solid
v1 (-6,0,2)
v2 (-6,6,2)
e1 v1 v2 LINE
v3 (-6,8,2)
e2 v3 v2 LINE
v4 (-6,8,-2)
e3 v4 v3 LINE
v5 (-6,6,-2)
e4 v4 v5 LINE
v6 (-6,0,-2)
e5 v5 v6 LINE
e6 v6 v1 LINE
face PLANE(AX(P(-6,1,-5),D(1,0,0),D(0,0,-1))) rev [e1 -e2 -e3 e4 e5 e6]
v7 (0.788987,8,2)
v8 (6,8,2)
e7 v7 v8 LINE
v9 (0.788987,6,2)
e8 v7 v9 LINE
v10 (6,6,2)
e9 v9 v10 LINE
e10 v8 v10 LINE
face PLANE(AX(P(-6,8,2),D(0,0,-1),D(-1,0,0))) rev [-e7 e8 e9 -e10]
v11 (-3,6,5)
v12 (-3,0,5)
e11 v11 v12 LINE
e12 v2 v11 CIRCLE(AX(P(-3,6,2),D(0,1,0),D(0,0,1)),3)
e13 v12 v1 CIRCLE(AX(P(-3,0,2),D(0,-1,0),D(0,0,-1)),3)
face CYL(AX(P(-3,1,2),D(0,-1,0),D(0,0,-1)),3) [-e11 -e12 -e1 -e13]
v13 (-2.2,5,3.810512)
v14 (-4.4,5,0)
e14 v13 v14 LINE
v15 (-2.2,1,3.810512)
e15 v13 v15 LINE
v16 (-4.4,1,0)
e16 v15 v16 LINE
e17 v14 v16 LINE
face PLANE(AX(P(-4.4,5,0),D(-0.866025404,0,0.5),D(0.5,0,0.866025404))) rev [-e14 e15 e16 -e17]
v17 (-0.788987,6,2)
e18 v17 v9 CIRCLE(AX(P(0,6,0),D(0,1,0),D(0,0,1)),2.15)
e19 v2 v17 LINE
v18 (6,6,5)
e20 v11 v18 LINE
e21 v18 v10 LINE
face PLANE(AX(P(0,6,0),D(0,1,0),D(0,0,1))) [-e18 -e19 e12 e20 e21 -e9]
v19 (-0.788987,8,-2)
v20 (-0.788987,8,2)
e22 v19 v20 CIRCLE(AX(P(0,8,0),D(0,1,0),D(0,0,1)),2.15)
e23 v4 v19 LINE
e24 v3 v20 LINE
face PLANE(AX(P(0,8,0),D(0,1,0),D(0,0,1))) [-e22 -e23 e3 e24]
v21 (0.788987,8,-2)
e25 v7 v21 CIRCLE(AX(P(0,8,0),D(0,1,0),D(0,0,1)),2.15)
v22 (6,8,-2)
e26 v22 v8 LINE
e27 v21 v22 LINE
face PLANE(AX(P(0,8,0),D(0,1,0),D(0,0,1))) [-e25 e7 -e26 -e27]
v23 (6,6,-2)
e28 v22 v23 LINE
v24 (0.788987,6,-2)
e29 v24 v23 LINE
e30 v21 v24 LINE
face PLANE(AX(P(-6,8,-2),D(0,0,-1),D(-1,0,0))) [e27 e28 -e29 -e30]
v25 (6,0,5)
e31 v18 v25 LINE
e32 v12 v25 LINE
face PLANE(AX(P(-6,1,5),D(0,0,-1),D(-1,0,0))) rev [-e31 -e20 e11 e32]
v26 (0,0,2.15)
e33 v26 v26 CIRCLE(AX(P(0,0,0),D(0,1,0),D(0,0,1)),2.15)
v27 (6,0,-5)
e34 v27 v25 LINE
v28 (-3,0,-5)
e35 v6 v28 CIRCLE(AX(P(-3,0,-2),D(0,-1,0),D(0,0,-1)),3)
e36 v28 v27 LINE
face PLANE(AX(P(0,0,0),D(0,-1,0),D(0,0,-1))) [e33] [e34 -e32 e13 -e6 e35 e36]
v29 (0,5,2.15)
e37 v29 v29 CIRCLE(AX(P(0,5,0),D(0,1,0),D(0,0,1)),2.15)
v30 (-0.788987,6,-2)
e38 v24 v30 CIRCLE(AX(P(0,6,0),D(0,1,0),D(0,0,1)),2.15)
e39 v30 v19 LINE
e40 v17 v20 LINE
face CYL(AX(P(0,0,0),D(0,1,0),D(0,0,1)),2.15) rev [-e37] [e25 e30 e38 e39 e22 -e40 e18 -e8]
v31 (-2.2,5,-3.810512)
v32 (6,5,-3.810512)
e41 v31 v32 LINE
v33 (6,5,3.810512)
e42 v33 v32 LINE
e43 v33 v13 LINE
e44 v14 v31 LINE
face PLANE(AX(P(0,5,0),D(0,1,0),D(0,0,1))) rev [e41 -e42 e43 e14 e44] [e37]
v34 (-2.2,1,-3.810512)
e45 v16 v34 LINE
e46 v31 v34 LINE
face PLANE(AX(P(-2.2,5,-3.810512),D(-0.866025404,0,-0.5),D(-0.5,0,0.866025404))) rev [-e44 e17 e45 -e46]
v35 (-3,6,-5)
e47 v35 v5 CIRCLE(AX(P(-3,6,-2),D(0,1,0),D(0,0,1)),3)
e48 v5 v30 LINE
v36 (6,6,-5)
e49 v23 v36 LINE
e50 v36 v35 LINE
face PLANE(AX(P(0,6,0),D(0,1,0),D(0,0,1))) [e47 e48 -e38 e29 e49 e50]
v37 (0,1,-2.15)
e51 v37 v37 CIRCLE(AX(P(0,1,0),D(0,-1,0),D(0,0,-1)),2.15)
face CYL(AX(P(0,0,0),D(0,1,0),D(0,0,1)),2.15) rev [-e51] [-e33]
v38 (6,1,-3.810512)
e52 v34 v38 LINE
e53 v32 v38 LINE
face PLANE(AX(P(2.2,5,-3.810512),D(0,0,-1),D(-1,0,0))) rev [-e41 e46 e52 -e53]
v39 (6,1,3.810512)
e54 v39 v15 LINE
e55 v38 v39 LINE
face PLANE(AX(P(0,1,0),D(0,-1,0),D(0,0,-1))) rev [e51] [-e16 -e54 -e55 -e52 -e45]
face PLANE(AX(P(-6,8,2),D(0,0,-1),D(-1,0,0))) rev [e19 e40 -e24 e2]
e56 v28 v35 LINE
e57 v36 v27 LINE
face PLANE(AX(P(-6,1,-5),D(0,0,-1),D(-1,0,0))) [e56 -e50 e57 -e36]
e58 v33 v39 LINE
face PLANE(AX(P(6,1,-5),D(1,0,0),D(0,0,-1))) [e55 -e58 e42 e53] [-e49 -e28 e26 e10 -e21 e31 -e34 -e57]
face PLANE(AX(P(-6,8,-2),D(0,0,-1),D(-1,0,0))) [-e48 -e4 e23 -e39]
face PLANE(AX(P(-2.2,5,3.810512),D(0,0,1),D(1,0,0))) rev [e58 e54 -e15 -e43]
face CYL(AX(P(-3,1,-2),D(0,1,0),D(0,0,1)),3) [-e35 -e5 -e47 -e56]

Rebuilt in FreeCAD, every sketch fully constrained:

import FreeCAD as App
import Part
import Sketcher
from FreeCAD import Vector
Q = App.Units.Quantity


def edges_at(feature, points):
    """Names of the edges that pass closest to the given points."""
    edges = feature.Shape.Edges
    near = lambda p: min(range(len(edges)), key=lambda i: edges[i].distToShape(Part.Vertex(*p))[0])
    return sorted({f"Edge{near(p) + 1}" for p in points})


def add_polygon(sketch, points):
    """Adds a closed chain of lines whose ends are joined by coincident constraints."""
    first, n = sketch.GeometryCount, len(points)
    for a, b in zip(points, points[1:] + points[:1]):
        sketch.addGeometry(Part.LineSegment(App.Vector(*a, 0), App.Vector(*b, 0)), False)
    for i in range(n):
        sketch.addConstraint(Sketcher.Constraint("Coincident", first + i, 2, first + (i + 1) % n, 1))

doc = App.newDocument("Part")
body = doc.addObject("PartDesign::Body", "Body")

# Sketch on XZ plane
sketch1 = body.newObject("Sketcher::SketchObject", "Sketch")
sketch1.AttachmentSupport = (doc.getObject("XZ_Plane"), [""])
sketch1.MapMode = "FlatFace"
add_polygon(sketch1, [(-6, -5), (-6, 5), (6, 5), (6, -5)])  # lines 0-3
sketch1.addConstraint([
    Sketcher.Constraint("Vertical", 0),
    Sketcher.Constraint("Horizontal", 1),
    Sketcher.Constraint("Vertical", 2),
    Sketcher.Constraint("Horizontal", 3),
    Sketcher.Constraint("Symmetric", 0, 2, 2, 2, -1, 1),
    Sketcher.Constraint("DistanceX", 1, 1, 1, 2, Q("12 mm")),
    Sketcher.Constraint("DistanceY", 0, 1, 0, 2, Q("10 mm")),
])
pad1 = body.newObject("PartDesign::Pad", "Pad")
pad1.Profile = sketch1
pad1.Length = 1
pad1.Reversed = True

# Sketch on XZ plane
sketch2 = body.newObject("Sketcher::SketchObject", "Sketch001")
sketch2.AttachmentSupport = (doc.getObject("XZ_Plane"), [""])
sketch2.MapMode = "FlatFace"
sketch2.AttachmentOffset = App.Placement(Vector(0, 0, -1), App.Rotation())
add_polygon(sketch2, [(6, 3.8), (-2.2, 3.8), (-4.4, 0), (-2.2, -3.8), (6, -3.8), (6, -5), (-6, -5), (-6, 5), (6, 5)])  # lines 0-8
sketch2.addConstraint([
    Sketcher.Constraint("Horizontal", 0),
    Sketcher.Constraint("Horizontal", 3),
    Sketcher.Constraint("Vertical", 4),
    Sketcher.Constraint("Horizontal", 5),
    Sketcher.Constraint("Vertical", 6),
    Sketcher.Constraint("Horizontal", 7),
    Sketcher.Constraint("Vertical", 8),
    Sketcher.Constraint("Symmetric", 4, 2, 6, 2, -1, 1),
    Sketcher.Constraint("Symmetric", 0, 2, 2, 2, -1),
    Sketcher.Constraint("PointOnObject", 1, 2, -1),
    Sketcher.Constraint("Vertical", 4, 2, 7, 2),
    Sketcher.Constraint("DistanceX", 5, 2, 5, 1, Q("12 mm")),
    Sketcher.Constraint("DistanceY", 6, 1, 6, 2, Q("10 mm")),
    Sketcher.Constraint("Angle", 1, Q("-120 deg")),
    Sketcher.Constraint("DistanceX", 0, 2, 0, 1, Q("8.2 mm")),
    Sketcher.Constraint("Distance", 1, Q("4.4 mm")),
])
pad2 = body.newObject("PartDesign::Pad", "Pad001")
pad2.Profile = sketch2
pad2.Length = 4
pad2.Reversed = True

# Sketch on XZ plane
sketch3 = body.newObject("Sketcher::SketchObject", "Sketch002")
sketch3.AttachmentSupport = (doc.getObject("XZ_Plane"), [""])
sketch3.MapMode = "FlatFace"
sketch3.AttachmentOffset = App.Placement(Vector(0, 0, -5), App.Rotation())
add_polygon(sketch3, [(-6, -5), (-6, 5), (6, 5), (6, -5)])  # lines 0-3
sketch3.addConstraint([
    Sketcher.Constraint("Vertical", 0),
    Sketcher.Constraint("Horizontal", 1),
    Sketcher.Constraint("Vertical", 2),
    Sketcher.Constraint("Horizontal", 3),
    Sketcher.Constraint("Symmetric", 0, 2, 2, 2, -1, 1),
    Sketcher.Constraint("DistanceX", 1, 1, 1, 2, Q("12 mm")),
    Sketcher.Constraint("DistanceY", 0, 1, 0, 2, Q("10 mm")),
])
pad3 = body.newObject("PartDesign::Pad", "Pad002")
pad3.Profile = sketch3
pad3.Length = 1
pad3.Reversed = True

# Sketch on XZ plane
sketch4 = body.newObject("Sketcher::SketchObject", "Sketch003")
sketch4.AttachmentSupport = (doc.getObject("XZ_Plane"), [""])
sketch4.MapMode = "FlatFace"
sketch4.AttachmentOffset = App.Placement(Vector(0, 0, -6), App.Rotation())
add_polygon(sketch4, [(-6, -2), (-6, 2), (6, 2), (6, -2)])  # lines 0-3
sketch4.addConstraint([
    Sketcher.Constraint("Vertical", 0),
    Sketcher.Constraint("Horizontal", 1),
    Sketcher.Constraint("Vertical", 2),
    Sketcher.Constraint("Horizontal", 3),
    Sketcher.Constraint("Symmetric", 0, 2, 2, 2, -1, 1),
    Sketcher.Constraint("DistanceX", 1, 1, 1, 2, Q("12 mm")),
    Sketcher.Constraint("DistanceY", 0, 1, 0, 2, Q("4 mm")),
])
pad4 = body.newObject("PartDesign::Pad", "Pad003")
pad4.Profile = sketch4
pad4.Length = 2
pad4.Reversed = True

# Sketch on XZ plane
sketch5 = body.newObject("Sketcher::SketchObject", "Sketch004")
sketch5.AttachmentSupport = (doc.getObject("XZ_Plane"), [""])
sketch5.MapMode = "FlatFace"
sketch5.AttachmentOffset = App.Placement(Vector(0, 0, -6), App.Rotation())
sketch5.addGeometry(Part.Circle(Vector(0, 0, 0), Vector(0, 0, 1), 2.1), False)
sketch5.addConstraint([
    Sketcher.Constraint("Coincident", 0, 3, -1, 1),
    Sketcher.Constraint("Diameter", 0, Q("4.3 mm")),
])
pocket1 = body.newObject("PartDesign::Pocket", "Pocket")
pocket1.Profile = sketch5
pocket1.Type = "ThroughAll"
pocket1.Midplane = True
doc.recompute()

fillet = body.newObject("PartDesign::Fillet", "Fillet")
fillet.Base = (pocket1, edges_at(pocket1, [(-6, 3, 5), (-6, 3, -5)]))
fillet.Radius = 3

doc.recompute()
